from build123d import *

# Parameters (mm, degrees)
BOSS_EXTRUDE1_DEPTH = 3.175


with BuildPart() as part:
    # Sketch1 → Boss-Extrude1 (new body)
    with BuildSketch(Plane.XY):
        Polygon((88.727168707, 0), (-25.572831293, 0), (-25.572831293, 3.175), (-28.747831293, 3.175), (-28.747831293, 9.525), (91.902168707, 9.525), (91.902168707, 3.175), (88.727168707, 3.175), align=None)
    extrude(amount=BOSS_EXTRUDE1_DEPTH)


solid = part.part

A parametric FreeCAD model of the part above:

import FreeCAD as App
import Part
import Sketcher

V = App.Vector
Q = App.Units.Quantity

doc = App.newDocument("Part")
body = doc.addObject("PartDesign::Body", "Body")

sketch1 = body.newObject("Sketcher::SketchObject", "Sketch")
sketch1.AttachmentSupport = (doc.getObject("XY_Plane"), [""])
sketch1.MapMode = "FlatFace"
sketch1.addGeometry([
    Part.LineSegment(V(-25.6, 0, 0), V(88.7, 0, 0)),
    Part.LineSegment(V(88.7, 0, 0), V(88.7, 3.2, 0)),
    Part.LineSegment(V(88.7, 3.2, 0), V(91.9, 3.2, 0)),
    Part.LineSegment(V(91.9, 3.2, 0), V(91.9, 9.5, 0)),
    Part.LineSegment(V(91.9, 9.5, 0), V(-28.7, 9.5, 0)),
    Part.LineSegment(V(-28.7, 9.5, 0), V(-28.7, 3.2, 0)),
    Part.LineSegment(V(-28.7, 3.2, 0), V(-25.6, 3.2, 0)),
    Part.LineSegment(V(-25.6, 3.2, 0), V(-25.6, 0, 0)),
], False)
sketch1.addConstraint([
    Sketcher.Constraint("Coincident", 0, 2, 1, 1),
    Sketcher.Constraint("Coincident", 1, 2, 2, 1),
    Sketcher.Constraint("Coincident", 2, 2, 3, 1),
    Sketcher.Constraint("Coincident", 3, 2, 4, 1),
    Sketcher.Constraint("Coincident", 4, 2, 5, 1),
    Sketcher.Constraint("Coincident", 5, 2, 6, 1),
    Sketcher.Constraint("Coincident", 6, 2, 7, 1),
    Sketcher.Constraint("Coincident", 7, 2, 0, 1),
    Sketcher.Constraint("Horizontal", 0),
    Sketcher.Constraint("Vertical", 1),
    Sketcher.Constraint("Horizontal", 2),
    Sketcher.Constraint("Vertical", 3),
    Sketcher.Constraint("Horizontal", 4),
    Sketcher.Constraint("Vertical", 5),
    Sketcher.Constraint("Horizontal", 6),
    Sketcher.Constraint("Vertical", 7),
    Sketcher.Constraint("PointOnObject", 0, 2, -1),
    Sketcher.Constraint("Horizontal", 2, 2, 5, 2),
    Sketcher.Constraint("Equal", 2, 6),
    Sketcher.Constraint("Equal", 6, 1),
    Sketcher.Constraint("DistanceX", 0, 1, 0, 2, Q("4.5 in")),
    Sketcher.Constraint("DistanceX", 4, 2, 4, 1, Q("4.75 in")),
    Sketcher.Constraint("DistanceY", 3, 1, 3, 2, Q("0.25 in")),
    Sketcher.Constraint("DistanceX", -1, 1, 0, 2, 88.727169),
])
pad1 = body.newObject("PartDesign::Pad", "Pad")
pad1.Profile = sketch1
pad1.Length = Q("0.125 in")

doc.recompute()
